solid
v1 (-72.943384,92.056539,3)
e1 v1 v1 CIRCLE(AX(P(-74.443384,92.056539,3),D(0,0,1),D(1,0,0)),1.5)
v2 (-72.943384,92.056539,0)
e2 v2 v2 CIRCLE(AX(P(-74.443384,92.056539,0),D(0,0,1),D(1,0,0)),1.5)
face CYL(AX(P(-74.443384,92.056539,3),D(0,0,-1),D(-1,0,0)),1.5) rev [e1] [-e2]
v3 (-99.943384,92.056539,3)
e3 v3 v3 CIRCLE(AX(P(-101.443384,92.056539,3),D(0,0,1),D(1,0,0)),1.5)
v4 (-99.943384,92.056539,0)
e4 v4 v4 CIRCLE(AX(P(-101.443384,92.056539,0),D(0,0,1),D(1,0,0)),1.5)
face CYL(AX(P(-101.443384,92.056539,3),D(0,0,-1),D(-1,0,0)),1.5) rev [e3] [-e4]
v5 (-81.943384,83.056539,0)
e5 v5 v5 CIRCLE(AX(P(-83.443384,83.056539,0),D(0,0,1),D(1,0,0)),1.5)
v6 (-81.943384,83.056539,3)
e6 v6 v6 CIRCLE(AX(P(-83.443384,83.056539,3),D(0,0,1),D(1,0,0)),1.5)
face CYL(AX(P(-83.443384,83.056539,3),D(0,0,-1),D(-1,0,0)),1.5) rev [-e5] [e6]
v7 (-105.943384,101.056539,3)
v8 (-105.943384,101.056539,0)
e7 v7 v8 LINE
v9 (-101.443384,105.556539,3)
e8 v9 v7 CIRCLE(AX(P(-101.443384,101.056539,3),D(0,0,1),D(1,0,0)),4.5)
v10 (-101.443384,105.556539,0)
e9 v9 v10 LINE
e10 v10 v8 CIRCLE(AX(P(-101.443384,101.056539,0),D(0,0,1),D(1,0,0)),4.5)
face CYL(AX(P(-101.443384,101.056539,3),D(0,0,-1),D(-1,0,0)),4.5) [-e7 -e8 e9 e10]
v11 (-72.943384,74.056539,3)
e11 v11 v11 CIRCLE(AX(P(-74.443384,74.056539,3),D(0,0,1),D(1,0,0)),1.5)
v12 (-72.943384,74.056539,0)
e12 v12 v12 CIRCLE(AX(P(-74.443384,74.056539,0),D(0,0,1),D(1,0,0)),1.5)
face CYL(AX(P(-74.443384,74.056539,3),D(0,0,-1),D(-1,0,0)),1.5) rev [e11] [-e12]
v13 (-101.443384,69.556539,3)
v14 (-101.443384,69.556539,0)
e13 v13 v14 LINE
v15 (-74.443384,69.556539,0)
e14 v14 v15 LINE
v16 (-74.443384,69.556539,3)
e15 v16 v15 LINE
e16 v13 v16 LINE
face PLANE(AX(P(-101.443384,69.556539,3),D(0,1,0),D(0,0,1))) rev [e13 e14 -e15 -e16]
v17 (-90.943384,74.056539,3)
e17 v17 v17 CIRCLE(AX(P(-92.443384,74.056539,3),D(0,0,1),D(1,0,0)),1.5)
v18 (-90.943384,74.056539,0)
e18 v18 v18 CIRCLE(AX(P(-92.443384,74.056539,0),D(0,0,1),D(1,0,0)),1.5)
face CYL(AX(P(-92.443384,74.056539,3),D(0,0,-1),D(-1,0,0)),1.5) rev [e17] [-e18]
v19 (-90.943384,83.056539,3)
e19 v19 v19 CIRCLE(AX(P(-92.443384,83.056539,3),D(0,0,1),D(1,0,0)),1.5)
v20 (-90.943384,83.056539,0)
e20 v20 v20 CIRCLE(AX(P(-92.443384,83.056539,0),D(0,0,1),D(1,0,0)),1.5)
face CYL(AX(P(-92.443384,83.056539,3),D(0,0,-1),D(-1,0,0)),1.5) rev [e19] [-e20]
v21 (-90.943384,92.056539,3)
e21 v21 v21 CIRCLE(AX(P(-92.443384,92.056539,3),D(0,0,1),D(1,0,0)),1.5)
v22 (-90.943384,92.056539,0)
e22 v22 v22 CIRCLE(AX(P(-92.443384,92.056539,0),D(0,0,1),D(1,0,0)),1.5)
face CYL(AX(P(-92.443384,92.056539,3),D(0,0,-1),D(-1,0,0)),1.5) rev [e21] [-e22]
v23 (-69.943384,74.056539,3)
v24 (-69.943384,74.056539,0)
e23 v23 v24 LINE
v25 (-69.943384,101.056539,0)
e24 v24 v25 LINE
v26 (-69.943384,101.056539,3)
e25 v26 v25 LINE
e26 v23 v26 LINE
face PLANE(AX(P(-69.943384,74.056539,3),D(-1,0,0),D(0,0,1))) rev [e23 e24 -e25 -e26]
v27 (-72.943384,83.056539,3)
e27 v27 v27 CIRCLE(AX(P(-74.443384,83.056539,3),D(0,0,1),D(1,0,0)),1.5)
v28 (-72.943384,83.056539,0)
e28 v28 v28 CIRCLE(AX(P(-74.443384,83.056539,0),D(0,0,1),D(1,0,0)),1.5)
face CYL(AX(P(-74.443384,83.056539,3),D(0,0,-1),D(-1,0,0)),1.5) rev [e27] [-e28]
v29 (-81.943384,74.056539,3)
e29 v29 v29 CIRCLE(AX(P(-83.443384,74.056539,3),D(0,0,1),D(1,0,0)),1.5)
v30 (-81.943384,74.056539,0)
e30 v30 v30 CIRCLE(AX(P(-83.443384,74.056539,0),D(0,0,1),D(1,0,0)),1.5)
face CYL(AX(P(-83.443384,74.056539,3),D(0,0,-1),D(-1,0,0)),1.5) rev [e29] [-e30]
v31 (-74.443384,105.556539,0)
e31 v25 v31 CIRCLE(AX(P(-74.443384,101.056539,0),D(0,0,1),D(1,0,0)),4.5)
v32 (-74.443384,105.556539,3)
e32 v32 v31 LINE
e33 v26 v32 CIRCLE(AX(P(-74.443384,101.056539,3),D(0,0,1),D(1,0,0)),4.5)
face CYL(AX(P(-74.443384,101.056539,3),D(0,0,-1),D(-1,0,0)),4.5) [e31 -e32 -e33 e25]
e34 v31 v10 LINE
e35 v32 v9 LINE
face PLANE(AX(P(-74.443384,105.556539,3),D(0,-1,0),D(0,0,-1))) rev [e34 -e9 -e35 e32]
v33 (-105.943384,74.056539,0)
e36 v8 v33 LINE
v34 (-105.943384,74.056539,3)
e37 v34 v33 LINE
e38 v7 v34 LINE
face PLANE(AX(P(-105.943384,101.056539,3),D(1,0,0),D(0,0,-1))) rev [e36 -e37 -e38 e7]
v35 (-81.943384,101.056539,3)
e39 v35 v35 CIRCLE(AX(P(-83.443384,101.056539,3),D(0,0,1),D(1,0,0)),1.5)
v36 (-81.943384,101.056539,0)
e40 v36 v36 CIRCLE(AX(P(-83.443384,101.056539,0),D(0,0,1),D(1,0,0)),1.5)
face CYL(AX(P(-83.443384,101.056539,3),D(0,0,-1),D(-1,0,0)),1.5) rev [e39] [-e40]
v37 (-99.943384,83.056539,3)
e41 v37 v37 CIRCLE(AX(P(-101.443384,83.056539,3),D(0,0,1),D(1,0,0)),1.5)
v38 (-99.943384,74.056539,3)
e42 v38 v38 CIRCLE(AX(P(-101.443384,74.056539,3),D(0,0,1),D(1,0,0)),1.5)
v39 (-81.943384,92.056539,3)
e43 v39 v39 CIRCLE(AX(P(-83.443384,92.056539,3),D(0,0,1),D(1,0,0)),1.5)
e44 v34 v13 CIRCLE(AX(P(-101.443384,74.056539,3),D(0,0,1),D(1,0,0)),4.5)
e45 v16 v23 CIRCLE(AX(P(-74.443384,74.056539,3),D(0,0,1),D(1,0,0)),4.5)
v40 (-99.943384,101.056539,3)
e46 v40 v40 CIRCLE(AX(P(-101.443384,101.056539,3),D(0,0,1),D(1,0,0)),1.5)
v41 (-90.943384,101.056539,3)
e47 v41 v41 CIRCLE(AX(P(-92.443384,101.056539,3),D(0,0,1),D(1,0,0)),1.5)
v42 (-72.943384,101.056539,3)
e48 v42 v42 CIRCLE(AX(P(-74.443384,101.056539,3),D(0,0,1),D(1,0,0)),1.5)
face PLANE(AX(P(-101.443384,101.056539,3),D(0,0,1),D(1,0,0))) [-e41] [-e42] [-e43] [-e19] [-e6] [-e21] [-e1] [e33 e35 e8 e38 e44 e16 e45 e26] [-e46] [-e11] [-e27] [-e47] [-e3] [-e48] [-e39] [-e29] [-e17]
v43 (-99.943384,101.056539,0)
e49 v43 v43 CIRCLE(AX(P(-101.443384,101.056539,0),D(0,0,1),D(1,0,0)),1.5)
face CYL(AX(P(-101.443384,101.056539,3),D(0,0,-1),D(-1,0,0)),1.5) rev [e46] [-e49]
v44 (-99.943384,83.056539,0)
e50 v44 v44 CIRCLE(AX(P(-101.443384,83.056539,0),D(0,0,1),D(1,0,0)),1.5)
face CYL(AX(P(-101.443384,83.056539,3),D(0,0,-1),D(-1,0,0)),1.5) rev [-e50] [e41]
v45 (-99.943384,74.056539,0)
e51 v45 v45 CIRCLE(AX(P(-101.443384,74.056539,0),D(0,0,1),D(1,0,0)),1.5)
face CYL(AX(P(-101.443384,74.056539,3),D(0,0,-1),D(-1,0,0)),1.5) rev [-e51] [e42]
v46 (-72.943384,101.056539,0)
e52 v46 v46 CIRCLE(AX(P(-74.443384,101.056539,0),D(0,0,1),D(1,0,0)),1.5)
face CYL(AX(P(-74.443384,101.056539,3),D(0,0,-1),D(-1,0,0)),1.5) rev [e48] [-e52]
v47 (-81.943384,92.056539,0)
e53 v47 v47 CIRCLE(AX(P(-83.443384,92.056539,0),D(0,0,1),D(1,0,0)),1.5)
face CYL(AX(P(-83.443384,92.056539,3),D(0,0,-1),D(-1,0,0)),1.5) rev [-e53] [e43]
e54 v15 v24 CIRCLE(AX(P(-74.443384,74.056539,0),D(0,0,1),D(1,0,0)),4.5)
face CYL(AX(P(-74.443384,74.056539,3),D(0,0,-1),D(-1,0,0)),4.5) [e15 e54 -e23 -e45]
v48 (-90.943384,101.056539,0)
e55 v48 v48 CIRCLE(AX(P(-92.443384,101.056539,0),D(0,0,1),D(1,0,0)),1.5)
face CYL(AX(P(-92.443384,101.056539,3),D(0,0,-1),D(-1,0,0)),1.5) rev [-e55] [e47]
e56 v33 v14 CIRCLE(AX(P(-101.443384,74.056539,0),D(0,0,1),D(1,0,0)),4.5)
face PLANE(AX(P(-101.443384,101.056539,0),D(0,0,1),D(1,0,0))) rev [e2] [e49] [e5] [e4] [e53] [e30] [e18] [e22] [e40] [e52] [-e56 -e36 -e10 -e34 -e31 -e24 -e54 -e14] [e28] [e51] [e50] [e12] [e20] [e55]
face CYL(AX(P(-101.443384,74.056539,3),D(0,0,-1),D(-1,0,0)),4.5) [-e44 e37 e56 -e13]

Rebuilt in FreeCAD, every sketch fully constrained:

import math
import FreeCAD as App
import Part
import Sketcher

doc = App.newDocument("Part")
params = doc.addObject("Spreadsheet::Sheet", "Params")
for row, (alias, value) in enumerate([
    ("sketch1_diameter", "3 mm"),
    ("sketch1_radius", "4.5 mm"),
    ("sketch1_width", "27 mm"),
    ("pad1_length", "3 mm"),
], start=1):
    params.set(f"A{row}", alias)
    params.set(f"B{row}", "=" + value)
    params.setAlias(f"B{row}", alias)

body = doc.addObject("PartDesign::Body", "Body")

# Sketch on XY plane
sketch1 = body.newObject("Sketcher::SketchObject", "Sketch")
sketch1.AttachmentSupport = (doc.getObject("XY_Plane"), [""])
sketch1.MapMode = "FlatFace"
sketch1.addGeometry(Part.LineSegment(App.Vector(-105.9, 101.1, 0), App.Vector(-105.9, 74.1, 0)), False)
sketch1.addGeometry(Part.ArcOfCircle(Part.Circle(App.Vector(-101.4, 74.1, 0), App.Vector(0, 0, 1), 4.5), math.radians(-180), math.radians(-90)), False)
sketch1.addGeometry(Part.LineSegment(App.Vector(-101.4, 69.6, 0), App.Vector(-74.4, 69.6, 0)), False)
sketch1.addGeometry(Part.ArcOfCircle(Part.Circle(App.Vector(-74.4, 74.1, 0), App.Vector(0, 0, 1), 4.5), math.radians(-90), math.radians(0)), False)
sketch1.addGeometry(Part.LineSegment(App.Vector(-69.9, 74.1, 0), App.Vector(-69.9, 101.1, 0)), False)
sketch1.addGeometry(Part.ArcOfCircle(Part.Circle(App.Vector(-74.4, 101.1, 0), App.Vector(0, 0, 1), 4.5), math.radians(0), math.radians(90)), False)
sketch1.addGeometry(Part.LineSegment(App.Vector(-74.4, 105.6, 0), App.Vector(-101.4, 105.6, 0)), False)
sketch1.addGeometry(Part.ArcOfCircle(Part.Circle(App.Vector(-101.4, 101.1, 0), App.Vector(0, 0, 1), 4.5), math.radians(90), math.radians(180)), False)
sketch1.addGeometry(Part.Circle(App.Vector(-101.4, 74.1, 0), App.Vector(0, 0, 1), 1.5), False)
sketch1.addGeometry(Part.Circle(App.Vector(-92.4, 74.1, 0), App.Vector(0, 0, 1), 1.5), False)
sketch1.addGeometry(Part.Circle(App.Vector(-101.4, 83.1, 0), App.Vector(0, 0, 1), 1.5), False)
sketch1.addGeometry(Part.Circle(App.Vector(-92.4, 83.1, 0), App.Vector(0, 0, 1), 1.5), False)
sketch1.addGeometry(Part.Circle(App.Vector(-83.4, 74.1, 0), App.Vector(0, 0, 1), 1.5), False)
sketch1.addGeometry(Part.Circle(App.Vector(-74.4, 74.1, 0), App.Vector(0, 0, 1), 1.5), False)
sketch1.addGeometry(Part.Circle(App.Vector(-83.4, 83.1, 0), App.Vector(0, 0, 1), 1.5), False)
sketch1.addGeometry(Part.Circle(App.Vector(-74.4, 83.1, 0), App.Vector(0, 0, 1), 1.5), False)
sketch1.addGeometry(Part.Circle(App.Vector(-101.4, 92.1, 0), App.Vector(0, 0, 1), 1.5), False)
sketch1.addGeometry(Part.Circle(App.Vector(-92.4, 92.1, 0), App.Vector(0, 0, 1), 1.5), False)
sketch1.addGeometry(Part.Circle(App.Vector(-101.4, 101.1, 0), App.Vector(0, 0, 1), 1.5), False)
sketch1.addGeometry(Part.Circle(App.Vector(-92.4, 101.1, 0), App.Vector(0, 0, 1), 1.5), False)
sketch1.addGeometry(Part.Circle(App.Vector(-83.4, 92.1, 0), App.Vector(0, 0, 1), 1.5), False)
sketch1.addGeometry(Part.Circle(App.Vector(-74.4, 92.1, 0), App.Vector(0, 0, 1), 1.5), False)
sketch1.addGeometry(Part.Circle(App.Vector(-83.4, 101.1, 0), App.Vector(0, 0, 1), 1.5), False)
sketch1.addGeometry(Part.Circle(App.Vector(-74.4, 101.1, 0), App.Vector(0, 0, 1), 1.5), False)
sketch1.addConstraint(Sketcher.Constraint("Tangent", 0, 2, 1, 1))
sketch1.addConstraint(Sketcher.Constraint("Tangent", 1, 2, 2, 1))
sketch1.addConstraint(Sketcher.Constraint("Tangent", 2, 2, 3, 1))
sketch1.addConstraint(Sketcher.Constraint("Tangent", 3, 2, 4, 1))
sketch1.addConstraint(Sketcher.Constraint("Tangent", 4, 2, 5, 1))
sketch1.addConstraint(Sketcher.Constraint("Tangent", 5, 2, 6, 1))
sketch1.addConstraint(Sketcher.Constraint("Tangent", 6, 2, 7, 1))
sketch1.addConstraint(Sketcher.Constraint("Tangent", 7, 2, 0, 1))
sketch1.addConstraint(Sketcher.Constraint("Vertical", 0))
sketch1.addConstraint(Sketcher.Constraint("Horizontal", 2))
sketch1.addConstraint(Sketcher.Constraint("Vertical", 4))
sketch1.addConstraint(Sketcher.Constraint("Horizontal", 6))
sketch1.addConstraint(Sketcher.Constraint("Coincident", 8, 3, 1, 3))
sketch1.addConstraint(Sketcher.Constraint("Coincident", 13, 3, 3, 3))
sketch1.addConstraint(Sketcher.Constraint("Coincident", 18, 3, 7, 3))
sketch1.addConstraint(Sketcher.Constraint("Coincident", 23, 3, 5, 3))
sketch1.addConstraint(Sketcher.Constraint("Equal", 1, 3))
sketch1.addConstraint(Sketcher.Constraint("Equal", 3, 5))
sketch1.addConstraint(Sketcher.Constraint("Equal", 5, 7))
sketch1.addConstraint(Sketcher.Constraint("Equal", 8, 9))
sketch1.addConstraint(Sketcher.Constraint("Equal", 9, 10))
sketch1.addConstraint(Sketcher.Constraint("Equal", 10, 11))
sketch1.addConstraint(Sketcher.Constraint("Equal", 11, 12))
sketch1.addConstraint(Sketcher.Constraint("Equal", 12, 13))
sketch1.addConstraint(Sketcher.Constraint("Equal", 13, 14))
sketch1.addConstraint(Sketcher.Constraint("Equal", 14, 15))
sketch1.addConstraint(Sketcher.Constraint("Equal", 15, 16))
sketch1.addConstraint(Sketcher.Constraint("Equal", 16, 17))
sketch1.addConstraint(Sketcher.Constraint("Equal", 17, 18))
sketch1.addConstraint(Sketcher.Constraint("Equal", 18, 19))
sketch1.addConstraint(Sketcher.Constraint("Equal", 19, 20))
sketch1.addConstraint(Sketcher.Constraint("Equal", 20, 21))
sketch1.addConstraint(Sketcher.Constraint("Equal", 21, 22))
sketch1.addConstraint(Sketcher.Constraint("Equal", 22, 23))
sketch1.addConstraint(Sketcher.Constraint("Horizontal", 8, 3, 9, 3))
sketch1.addConstraint(Sketcher.Constraint("Horizontal", 10, 3, 11, 3))
sketch1.addConstraint(Sketcher.Constraint("Horizontal", 9, 3, 12, 3))
sketch1.addConstraint(Sketcher.Constraint("Horizontal", 11, 3, 14, 3))
sketch1.addConstraint(Sketcher.Constraint("Horizontal", 14, 3, 15, 3))
sketch1.addConstraint(Sketcher.Constraint("Horizontal", 16, 3, 17, 3))
sketch1.addConstraint(Sketcher.Constraint("Horizontal", 18, 3, 19, 3))
sketch1.addConstraint(Sketcher.Constraint("Horizontal", 17, 3, 20, 3))
sketch1.addConstraint(Sketcher.Constraint("Horizontal", 20, 3, 21, 3))
sketch1.addConstraint(Sketcher.Constraint("Horizontal", 19, 3, 22, 3))
sketch1.addConstraint(Sketcher.Constraint("Vertical", 8, 3, 10, 3))
sketch1.addConstraint(Sketcher.Constraint("Vertical", 9, 3, 11, 3))
sketch1.addConstraint(Sketcher.Constraint("Vertical", 12, 3, 14, 3))
sketch1.addConstraint(Sketcher.Constraint("Vertical", 13, 3, 15, 3))
sketch1.addConstraint(Sketcher.Constraint("Vertical", 10, 3, 16, 3))
sketch1.addConstraint(Sketcher.Constraint("Vertical", 11, 3, 17, 3))
sketch1.addConstraint(Sketcher.Constraint("Vertical", 17, 3, 19, 3))
sketch1.addConstraint(Sketcher.Constraint("Vertical", 14, 3, 20, 3))
sketch1.addConstraint(Sketcher.Constraint("Vertical", 15, 3, 21, 3))
sketch1.addConstraint(Sketcher.Constraint("Vertical", 20, 3, 22, 3))
sketch1.addConstraint(Sketcher.Constraint("Equal", 6, 0))
sketch1.addConstraint(Sketcher.Constraint("Diameter", 8, 3.0))
sketch1.addConstraint(Sketcher.Constraint("Radius", 1, 4.5))
sketch1.addConstraint(Sketcher.Constraint("DistanceX", 2, 1, 2, 2, 27.0))
sketch1.addConstraint(Sketcher.Constraint("DistanceX", 1, 3, 9, 3, 9.0))
sketch1.addConstraint(Sketcher.Constraint("DistanceY", 1, 3, 10, 3, 9.0))
sketch1.addConstraint(Sketcher.Constraint("DistanceX", 12, 3, 3, 3, 9.0))
sketch1.addConstraint(Sketcher.Constraint("DistanceY", 16, 3, 7, 3, 9.0))
sketch1.addConstraint(Sketcher.Constraint("DistanceY", -1, 1, 1, 3, 74.056539))
sketch1.addConstraint(Sketcher.Constraint("DistanceX", 1, 3, -1, 1, 101.443384))
sketch1.setExpression("Constraints[55]", "Params.sketch1_diameter")
sketch1.setExpression("Constraints[56]", "Params.sketch1_radius")
sketch1.setExpression("Constraints[57]", "Params.sketch1_width")
pad1 = body.newObject("PartDesign::Pad", "Pad")
pad1.Profile = sketch1
pad1.setExpression("Length", "Params.pad1_length")

doc.recompute()
